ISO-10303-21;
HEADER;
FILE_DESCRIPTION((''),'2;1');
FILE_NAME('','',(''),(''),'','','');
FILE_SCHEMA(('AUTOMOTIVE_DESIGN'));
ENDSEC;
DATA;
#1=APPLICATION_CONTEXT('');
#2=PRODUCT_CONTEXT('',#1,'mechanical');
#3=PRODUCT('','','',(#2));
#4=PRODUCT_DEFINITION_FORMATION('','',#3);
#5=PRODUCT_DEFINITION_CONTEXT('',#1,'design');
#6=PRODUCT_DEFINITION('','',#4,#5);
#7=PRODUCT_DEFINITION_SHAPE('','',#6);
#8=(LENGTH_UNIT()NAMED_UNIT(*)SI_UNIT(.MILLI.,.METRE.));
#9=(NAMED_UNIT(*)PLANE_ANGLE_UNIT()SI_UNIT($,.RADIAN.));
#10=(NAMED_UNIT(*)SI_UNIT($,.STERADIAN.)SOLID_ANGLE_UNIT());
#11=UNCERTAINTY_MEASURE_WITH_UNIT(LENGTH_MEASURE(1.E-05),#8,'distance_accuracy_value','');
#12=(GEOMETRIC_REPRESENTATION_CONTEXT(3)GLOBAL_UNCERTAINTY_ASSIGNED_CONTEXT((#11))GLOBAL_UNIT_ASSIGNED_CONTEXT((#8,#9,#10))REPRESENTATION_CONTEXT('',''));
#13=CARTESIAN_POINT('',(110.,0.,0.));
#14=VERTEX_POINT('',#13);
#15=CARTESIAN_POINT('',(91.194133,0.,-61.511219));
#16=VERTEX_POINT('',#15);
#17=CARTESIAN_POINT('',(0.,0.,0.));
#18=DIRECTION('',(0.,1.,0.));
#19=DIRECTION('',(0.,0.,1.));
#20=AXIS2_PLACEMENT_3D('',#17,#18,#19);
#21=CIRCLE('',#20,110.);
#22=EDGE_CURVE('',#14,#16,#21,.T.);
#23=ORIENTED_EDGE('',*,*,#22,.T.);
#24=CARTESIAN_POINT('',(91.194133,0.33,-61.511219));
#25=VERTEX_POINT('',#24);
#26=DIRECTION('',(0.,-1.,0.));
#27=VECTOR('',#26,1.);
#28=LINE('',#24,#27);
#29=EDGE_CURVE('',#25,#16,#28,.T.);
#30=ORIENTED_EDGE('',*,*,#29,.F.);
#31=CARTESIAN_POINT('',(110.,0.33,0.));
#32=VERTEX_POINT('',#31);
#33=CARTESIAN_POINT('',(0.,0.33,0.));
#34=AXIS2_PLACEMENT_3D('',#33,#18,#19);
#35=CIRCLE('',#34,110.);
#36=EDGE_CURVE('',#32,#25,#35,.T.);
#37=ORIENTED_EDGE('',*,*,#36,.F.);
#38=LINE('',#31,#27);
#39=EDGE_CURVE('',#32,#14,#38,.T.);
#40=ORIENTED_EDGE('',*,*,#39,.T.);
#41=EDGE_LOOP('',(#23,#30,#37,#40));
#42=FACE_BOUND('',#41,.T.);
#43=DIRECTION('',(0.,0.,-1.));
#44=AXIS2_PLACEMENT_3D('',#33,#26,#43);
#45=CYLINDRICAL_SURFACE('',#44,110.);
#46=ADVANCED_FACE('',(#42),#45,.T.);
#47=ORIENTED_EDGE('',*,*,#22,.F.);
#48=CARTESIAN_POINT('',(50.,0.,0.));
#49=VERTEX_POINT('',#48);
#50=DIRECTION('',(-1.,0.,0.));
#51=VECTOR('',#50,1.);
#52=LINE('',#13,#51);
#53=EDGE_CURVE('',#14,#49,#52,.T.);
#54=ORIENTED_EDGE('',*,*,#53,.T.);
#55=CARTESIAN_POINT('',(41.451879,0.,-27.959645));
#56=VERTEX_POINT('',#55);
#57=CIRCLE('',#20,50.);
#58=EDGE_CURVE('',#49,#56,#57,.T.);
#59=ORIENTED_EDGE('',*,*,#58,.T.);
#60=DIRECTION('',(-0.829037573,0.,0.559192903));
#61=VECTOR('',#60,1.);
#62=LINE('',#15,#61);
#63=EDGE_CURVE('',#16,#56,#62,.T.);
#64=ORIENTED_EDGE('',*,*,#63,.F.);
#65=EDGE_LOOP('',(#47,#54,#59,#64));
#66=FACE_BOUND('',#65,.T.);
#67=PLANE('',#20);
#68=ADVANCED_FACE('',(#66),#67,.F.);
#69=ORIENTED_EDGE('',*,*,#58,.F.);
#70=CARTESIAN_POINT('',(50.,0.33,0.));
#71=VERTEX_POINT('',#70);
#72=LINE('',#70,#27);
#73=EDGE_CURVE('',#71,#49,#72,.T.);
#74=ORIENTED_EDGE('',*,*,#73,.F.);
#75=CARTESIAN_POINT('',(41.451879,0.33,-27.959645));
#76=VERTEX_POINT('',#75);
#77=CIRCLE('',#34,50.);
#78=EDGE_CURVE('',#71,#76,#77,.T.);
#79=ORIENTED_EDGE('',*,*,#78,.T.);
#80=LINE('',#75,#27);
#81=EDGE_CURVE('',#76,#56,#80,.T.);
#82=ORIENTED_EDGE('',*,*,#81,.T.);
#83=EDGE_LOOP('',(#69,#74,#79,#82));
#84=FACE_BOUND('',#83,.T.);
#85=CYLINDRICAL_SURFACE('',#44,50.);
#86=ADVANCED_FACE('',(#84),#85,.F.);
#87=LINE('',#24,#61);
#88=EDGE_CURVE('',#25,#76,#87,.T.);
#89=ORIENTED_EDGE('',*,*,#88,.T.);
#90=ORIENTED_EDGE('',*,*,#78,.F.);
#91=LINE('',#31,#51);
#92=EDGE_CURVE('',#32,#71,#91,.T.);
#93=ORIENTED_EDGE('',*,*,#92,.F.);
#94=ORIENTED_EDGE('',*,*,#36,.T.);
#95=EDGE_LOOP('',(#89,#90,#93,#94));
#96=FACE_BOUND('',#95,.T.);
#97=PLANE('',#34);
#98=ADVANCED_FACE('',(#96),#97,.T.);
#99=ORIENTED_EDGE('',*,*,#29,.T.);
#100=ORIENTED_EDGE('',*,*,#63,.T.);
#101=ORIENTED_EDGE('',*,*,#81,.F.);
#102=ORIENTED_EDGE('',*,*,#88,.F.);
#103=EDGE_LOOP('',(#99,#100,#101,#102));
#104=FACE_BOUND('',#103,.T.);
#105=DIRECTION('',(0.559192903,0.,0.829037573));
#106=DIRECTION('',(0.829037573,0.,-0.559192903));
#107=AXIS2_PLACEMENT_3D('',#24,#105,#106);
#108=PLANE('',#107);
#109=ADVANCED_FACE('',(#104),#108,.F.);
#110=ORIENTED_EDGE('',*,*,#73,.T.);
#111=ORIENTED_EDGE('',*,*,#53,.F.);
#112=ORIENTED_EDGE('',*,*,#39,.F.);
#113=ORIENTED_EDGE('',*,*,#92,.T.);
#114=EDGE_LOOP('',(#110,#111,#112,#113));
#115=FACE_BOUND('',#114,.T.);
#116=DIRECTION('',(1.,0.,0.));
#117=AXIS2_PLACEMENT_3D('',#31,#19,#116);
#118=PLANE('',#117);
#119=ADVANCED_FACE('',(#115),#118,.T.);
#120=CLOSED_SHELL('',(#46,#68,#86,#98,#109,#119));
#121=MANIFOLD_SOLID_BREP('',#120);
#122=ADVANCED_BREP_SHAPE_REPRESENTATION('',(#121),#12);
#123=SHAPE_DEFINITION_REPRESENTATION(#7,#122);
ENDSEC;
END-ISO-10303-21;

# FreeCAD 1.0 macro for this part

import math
import FreeCAD as App
import Part
import Sketcher
from FreeCAD import Vector
Q = App.Units.Quantity

doc = App.newDocument("Part")
body = doc.addObject("PartDesign::Body", "Body")

sketch1 = doc.addObject("Sketcher::SketchObject", "Sketch")
body.addObject(sketch1)
sketch1.AttachmentSupport = (doc.XZ_Plane, [""])
sketch1.MapMode = "FlatFace"
sketch1.addGeometry(Part.LineSegment(Vector(91, -62, 0), Vector(41, -28, 0)), False)
sketch1.addGeometry(Part.ArcOfCircle(Part.Circle(Vector(0, 0, 0), Vector(0, 0, 1), 50), math.radians(-34), math.radians(0)), False)
sketch1.addGeometry(Part.LineSegment(Vector(50, 0, 0), Vector(110, 0, 0)), False)
sketch1.addGeometry(Part.ArcOfCircle(Part.Circle(Vector(0, 0, 0), Vector(0, 0, 1), 110), math.radians(-34), math.radians(0)), False)
sketch1.addConstraint(Sketcher.Constraint("Coincident", 0, 2, 1, 1))
sketch1.addConstraint(Sketcher.Constraint("Coincident", 1, 2, 2, 1))
sketch1.addConstraint(Sketcher.Constraint("Coincident", 2, 2, 3, 2))
sketch1.addConstraint(Sketcher.Constraint("Coincident", 3, 1, 0, 1))
sketch1.addConstraint(Sketcher.Constraint("Horizontal", 2))
sketch1.addConstraint(Sketcher.Constraint("Coincident", 1, 3, -1, 1))
sketch1.addConstraint(Sketcher.Constraint("Coincident", 3, 3, -1, 1))
sketch1.addConstraint(Sketcher.Constraint("PointOnObject", 1, 2, -1))
sketch1.addConstraint(Sketcher.Constraint("Radius", 1, 50.0))
sketch1.addConstraint(Sketcher.Constraint("Radius", 3, 110.0))
sketch1.addConstraint(Sketcher.Constraint("Angle", 0, Q("146 deg")))
sketch1.addConstraint(Sketcher.Constraint("DistanceX", -1, 1, 0, 2, 41.451879))
pad1 = doc.addObject("PartDesign::Pad", "Pad")
body.addObject(pad1)
pad1.Profile = sketch1
pad1.Length = 0.33
pad1.Reversed = True

doc.recompute()
